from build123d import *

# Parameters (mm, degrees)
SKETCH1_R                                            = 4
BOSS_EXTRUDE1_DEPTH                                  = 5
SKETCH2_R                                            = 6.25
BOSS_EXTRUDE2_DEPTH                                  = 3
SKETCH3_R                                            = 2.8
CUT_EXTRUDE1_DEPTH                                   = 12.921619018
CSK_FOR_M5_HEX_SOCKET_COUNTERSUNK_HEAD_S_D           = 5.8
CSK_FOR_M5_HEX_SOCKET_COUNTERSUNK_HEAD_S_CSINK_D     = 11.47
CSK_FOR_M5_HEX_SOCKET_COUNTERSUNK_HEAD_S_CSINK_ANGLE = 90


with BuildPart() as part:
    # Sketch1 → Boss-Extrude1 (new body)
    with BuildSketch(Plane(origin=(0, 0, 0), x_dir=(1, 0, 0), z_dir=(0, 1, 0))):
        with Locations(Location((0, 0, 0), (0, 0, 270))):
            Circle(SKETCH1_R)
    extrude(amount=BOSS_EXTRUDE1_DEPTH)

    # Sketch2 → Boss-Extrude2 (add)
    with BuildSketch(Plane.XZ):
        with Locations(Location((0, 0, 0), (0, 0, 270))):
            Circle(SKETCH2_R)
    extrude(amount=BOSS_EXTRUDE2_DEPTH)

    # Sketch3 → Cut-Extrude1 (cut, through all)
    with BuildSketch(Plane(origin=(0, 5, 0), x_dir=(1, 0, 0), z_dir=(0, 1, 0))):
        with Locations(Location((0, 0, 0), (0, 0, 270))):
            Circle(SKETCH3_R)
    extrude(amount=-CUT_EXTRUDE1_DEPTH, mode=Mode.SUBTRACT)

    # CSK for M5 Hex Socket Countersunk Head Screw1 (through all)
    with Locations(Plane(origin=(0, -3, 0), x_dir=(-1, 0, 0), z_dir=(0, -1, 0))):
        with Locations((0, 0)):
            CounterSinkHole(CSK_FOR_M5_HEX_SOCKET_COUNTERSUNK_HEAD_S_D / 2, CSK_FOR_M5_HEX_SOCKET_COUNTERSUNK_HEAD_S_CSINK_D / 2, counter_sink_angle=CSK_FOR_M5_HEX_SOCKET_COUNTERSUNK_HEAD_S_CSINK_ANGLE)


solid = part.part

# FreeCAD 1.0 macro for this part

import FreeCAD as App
import Part
import Sketcher
Q = App.Units.Quantity

doc = App.newDocument("Part")
params = doc.addObject("Spreadsheet::Sheet", "Params")
for row, (alias, value) in enumerate([
    ("sketch1_diameter", "8 mm"),
    ("pad1_length", "5 mm"),
    ("sketch2_diameter", "12.5 mm"),
    ("pad2_length", "3 mm"),
    ("sketch3_diameter", "5.6 mm"),
    ("sketch4_diameter", "5.8 mm"),
    ("hole_diameter", "5.8 mm"),
    ("hole_csink_diameter", "11.47 mm"),
], start=1):
    params.set(f"A{row}", alias)
    params.set(f"B{row}", "=" + value)
    params.setAlias(f"B{row}", alias)

body = doc.addObject("PartDesign::Body", "Body")

# Sketch on XZ plane
sketch1 = body.newObject("Sketcher::SketchObject", "Sketch")
sketch1.AttachmentSupport = (doc.getObject("XZ_Plane"), [""])
sketch1.MapMode = "FlatFace"
sketch1.addGeometry(Part.Circle(App.Vector(0, 0, 0), App.Vector(0, 0, 1), 4), False)
sketch1.addConstraint([
    Sketcher.Constraint("Coincident", 0, 3, -1, 1),
    Sketcher.Constraint("Diameter", 0, Q("8 mm")),
])
sketch1.setExpression("Constraints[1]", "Params.sketch1_diameter")
pad1 = body.newObject("PartDesign::Pad", "Pad")
pad1.Profile = sketch1
pad1.setExpression("Length", "Params.pad1_length")
pad1.Reversed = True

# Sketch on XZ plane
sketch2 = body.newObject("Sketcher::SketchObject", "Sketch001")
sketch2.AttachmentSupport = (doc.getObject("XZ_Plane"), [""])
sketch2.MapMode = "FlatFace"
sketch2.addGeometry(Part.Circle(App.Vector(0, 0, 0), App.Vector(0, 0, 1), 6), False)
sketch2.addConstraint([
    Sketcher.Constraint("Coincident", 0, 3, -1, 1),
    Sketcher.Constraint("Diameter", 0, Q("12.5 mm")),
])
sketch2.setExpression("Constraints[1]", "Params.sketch2_diameter")
pad2 = body.newObject("PartDesign::Pad", "Pad001")
pad2.Profile = sketch2
pad2.setExpression("Length", "Params.pad2_length")

# Sketch on XZ plane
sketch3 = body.newObject("Sketcher::SketchObject", "Sketch002")
sketch3.AttachmentSupport = (doc.getObject("XZ_Plane"), [""])
sketch3.MapMode = "FlatFace"
sketch3.AttachmentOffset = App.Placement(App.Vector(0, 0, -5), App.Rotation())
sketch3.addGeometry(Part.Circle(App.Vector(0, 0, 0), App.Vector(0, 0, 1), 2.8), False)
sketch3.addConstraint([
    Sketcher.Constraint("Coincident", 0, 3, -1, 1),
    Sketcher.Constraint("Diameter", 0, Q("5.6 mm")),
])
sketch3.setExpression("Constraints[1]", "Params.sketch3_diameter")
pocket1 = body.newObject("PartDesign::Pocket", "Pocket")
pocket1.Profile = sketch3
pocket1.Type = "ThroughAll"
pocket1.Reversed = True

# Sketch on XZ plane
sketch4 = body.newObject("Sketcher::SketchObject", "Sketch003")
sketch4.AttachmentSupport = (doc.getObject("XZ_Plane"), [""])
sketch4.MapMode = "FlatFace"
sketch4.AttachmentOffset = App.Placement(App.Vector(0, 0, 3), App.Rotation())
sketch4.addGeometry(Part.Circle(App.Vector(0, 0, 0), App.Vector(0, 0, 1), 2.9), False)
sketch4.addConstraint([
    Sketcher.Constraint("Coincident", 0, 3, -1, 1),
    Sketcher.Constraint("Diameter", 0, Q("5.8 mm")),
])
sketch4.setExpression("Constraints[1]", "Params.sketch4_diameter")
doc.recompute()
hole = body.newObject("PartDesign::Hole", "Hole")
hole.Profile = sketch4
hole.ThreadType = "None"
hole.setExpression("Diameter", "Params.hole_diameter")
hole.DepthType = "ThroughAll"
hole.HoleCutType = "Countersink"
hole.setExpression("HoleCutDiameter", "Params.hole_csink_diameter")
hole.HoleCutCountersinkAngle = 90

doc.recompute()
